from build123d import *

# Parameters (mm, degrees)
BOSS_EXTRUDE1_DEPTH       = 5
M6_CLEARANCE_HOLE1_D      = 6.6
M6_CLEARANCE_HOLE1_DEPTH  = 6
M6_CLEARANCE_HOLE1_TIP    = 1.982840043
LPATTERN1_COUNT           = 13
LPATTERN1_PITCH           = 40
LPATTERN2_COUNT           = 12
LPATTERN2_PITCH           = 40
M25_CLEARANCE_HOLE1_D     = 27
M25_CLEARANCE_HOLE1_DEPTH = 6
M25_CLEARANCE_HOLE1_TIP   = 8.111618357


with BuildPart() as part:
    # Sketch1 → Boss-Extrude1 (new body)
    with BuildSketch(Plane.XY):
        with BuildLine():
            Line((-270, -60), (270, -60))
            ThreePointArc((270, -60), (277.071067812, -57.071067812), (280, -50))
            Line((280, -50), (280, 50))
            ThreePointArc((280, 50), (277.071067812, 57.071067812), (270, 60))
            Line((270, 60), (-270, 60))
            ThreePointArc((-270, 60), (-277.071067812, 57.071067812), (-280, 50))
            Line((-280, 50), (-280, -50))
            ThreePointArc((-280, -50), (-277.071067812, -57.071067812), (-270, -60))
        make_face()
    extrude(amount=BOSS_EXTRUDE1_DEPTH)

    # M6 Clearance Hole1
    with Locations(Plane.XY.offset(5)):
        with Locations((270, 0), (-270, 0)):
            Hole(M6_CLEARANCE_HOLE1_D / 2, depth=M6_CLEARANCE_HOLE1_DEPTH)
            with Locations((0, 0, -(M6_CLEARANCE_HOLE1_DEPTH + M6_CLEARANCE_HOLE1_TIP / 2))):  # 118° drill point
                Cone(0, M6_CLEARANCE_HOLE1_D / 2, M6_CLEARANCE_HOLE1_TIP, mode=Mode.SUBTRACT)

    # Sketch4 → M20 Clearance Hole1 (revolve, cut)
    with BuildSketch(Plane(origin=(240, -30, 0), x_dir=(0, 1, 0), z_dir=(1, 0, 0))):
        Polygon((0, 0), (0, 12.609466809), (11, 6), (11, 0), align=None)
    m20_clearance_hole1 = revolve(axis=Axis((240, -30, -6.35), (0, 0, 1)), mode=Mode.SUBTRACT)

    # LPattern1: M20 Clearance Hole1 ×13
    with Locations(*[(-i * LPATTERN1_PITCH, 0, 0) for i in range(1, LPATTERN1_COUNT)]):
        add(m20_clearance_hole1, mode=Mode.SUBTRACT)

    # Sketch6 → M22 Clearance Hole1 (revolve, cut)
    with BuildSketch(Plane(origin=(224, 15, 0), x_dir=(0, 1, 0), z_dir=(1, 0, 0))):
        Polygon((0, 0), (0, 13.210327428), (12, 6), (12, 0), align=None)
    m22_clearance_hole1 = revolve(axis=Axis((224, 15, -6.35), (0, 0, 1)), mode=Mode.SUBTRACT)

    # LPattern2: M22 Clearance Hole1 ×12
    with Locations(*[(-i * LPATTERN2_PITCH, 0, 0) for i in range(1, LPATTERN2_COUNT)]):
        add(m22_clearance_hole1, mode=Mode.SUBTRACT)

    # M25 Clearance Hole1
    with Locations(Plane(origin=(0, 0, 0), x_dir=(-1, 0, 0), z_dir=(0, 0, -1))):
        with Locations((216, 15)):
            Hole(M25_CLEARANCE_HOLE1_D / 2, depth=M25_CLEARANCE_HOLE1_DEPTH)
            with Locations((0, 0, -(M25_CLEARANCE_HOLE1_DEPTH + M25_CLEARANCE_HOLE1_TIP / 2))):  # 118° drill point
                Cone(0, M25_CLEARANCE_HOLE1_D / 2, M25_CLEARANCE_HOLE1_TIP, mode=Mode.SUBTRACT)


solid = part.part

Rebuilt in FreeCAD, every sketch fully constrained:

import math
import FreeCAD as App
import Part
import Sketcher

V = App.Vector
Q = App.Units.Quantity


def add_polygon(sketch, points):
    """Adds a closed chain of lines whose ends are joined by coincident constraints."""
    first, n = sketch.GeometryCount, len(points)
    for a, b in zip(points, points[1:] + points[:1]):
        sketch.addGeometry(Part.LineSegment(App.Vector(*a, 0), App.Vector(*b, 0)), False)
    for i in range(n):
        sketch.addConstraint(Sketcher.Constraint("Coincident", first + i, 2, first + (i + 1) % n, 1))

doc = App.newDocument("Part")
body = doc.addObject("PartDesign::Body", "Body")

sketch1 = doc.addObject("Sketcher::SketchObject", "Sketch")
body.addObject(sketch1)
sketch1.AttachmentSupport = (doc.XY_Plane, [""])
sketch1.MapMode = "FlatFace"
sketch1.addGeometry(Part.LineSegment(V(-270, -60, 0), V(270, -60, 0)), False)
sketch1.addGeometry(Part.ArcOfCircle(Part.Circle(V(270, -50, 0), V(0, 0, 1), 10), math.radians(-90), math.radians(0)), False)
sketch1.addGeometry(Part.LineSegment(V(280, -50, 0), V(280, 50, 0)), False)
sketch1.addGeometry(Part.ArcOfCircle(Part.Circle(V(270, 50, 0), V(0, 0, 1), 10), math.radians(0), math.radians(90)), False)
sketch1.addGeometry(Part.LineSegment(V(270, 60, 0), V(-270, 60, 0)), False)
sketch1.addGeometry(Part.ArcOfCircle(Part.Circle(V(-270, 50, 0), V(0, 0, 1), 10), math.radians(90), math.radians(180)), False)
sketch1.addGeometry(Part.LineSegment(V(-280, 50, 0), V(-280, -50, 0)), False)
sketch1.addGeometry(Part.ArcOfCircle(Part.Circle(V(-270, -50, 0), V(0, 0, 1), 10), math.radians(180), math.radians(270)), False)
sketch1.addConstraint(Sketcher.Constraint("Tangent", 0, 2, 1, 1))
sketch1.addConstraint(Sketcher.Constraint("Tangent", 1, 2, 2, 1))
sketch1.addConstraint(Sketcher.Constraint("Tangent", 2, 2, 3, 1))
sketch1.addConstraint(Sketcher.Constraint("Tangent", 3, 2, 4, 1))
sketch1.addConstraint(Sketcher.Constraint("Tangent", 4, 2, 5, 1))
sketch1.addConstraint(Sketcher.Constraint("Tangent", 5, 2, 6, 1))
sketch1.addConstraint(Sketcher.Constraint("Tangent", 6, 2, 7, 1))
sketch1.addConstraint(Sketcher.Constraint("Tangent", 7, 2, 0, 1))
sketch1.addConstraint(Sketcher.Constraint("Horizontal", 0))
sketch1.addConstraint(Sketcher.Constraint("Vertical", 2))
sketch1.addConstraint(Sketcher.Constraint("Horizontal", 4))
sketch1.addConstraint(Sketcher.Constraint("Vertical", 6))
sketch1.addConstraint(Sketcher.Constraint("Equal", 1, 3))
sketch1.addConstraint(Sketcher.Constraint("Equal", 3, 5))
sketch1.addConstraint(Sketcher.Constraint("Equal", 5, 7))
sketch1.addConstraint(Sketcher.Constraint("Symmetric", 1, 3, 5, 3, -1, 1))
sketch1.addConstraint(Sketcher.Constraint("Radius", 1, Q("10 mm")))
sketch1.addConstraint(Sketcher.Constraint("DistanceX", 0, 1, 0, 2, Q("540 mm")))
sketch1.addConstraint(Sketcher.Constraint("DistanceY", 2, 1, 2, 2, Q("100 mm")))
pad1 = doc.addObject("PartDesign::Pad", "Pad")
body.addObject(pad1)
pad1.Profile = sketch1
pad1.Length = 5

sketch2 = doc.addObject("Sketcher::SketchObject", "Sketch001")
body.addObject(sketch2)
sketch2.AttachmentSupport = (doc.XY_Plane, [""])
sketch2.MapMode = "FlatFace"
sketch2.AttachmentOffset = App.Placement(V(0, 0, 5), App.Rotation())
sketch2.addGeometry(Part.Circle(V(270, 0, 0), V(0, 0, 1), 3.3), False)
sketch2.addGeometry(Part.Circle(V(-270, 0, 0), V(0, 0, 1), 3.3), False)
sketch2.addConstraint(Sketcher.Constraint("Equal", 0, 1))
sketch2.addConstraint(Sketcher.Constraint("Symmetric", 0, 3, 1, 3, -1, 1))
sketch2.addConstraint(Sketcher.Constraint("PointOnObject", 0, 3, -1))
sketch2.addConstraint(Sketcher.Constraint("Diameter", 0, Q("6.6 mm")))
sketch2.addConstraint(Sketcher.Constraint("DistanceX", -1, 1, 0, 3, Q("270 mm")))
doc.recompute()
hole = doc.addObject("PartDesign::Hole", "Hole")
body.addObject(hole)
hole.Profile = sketch2
hole.ThreadType = "None"
hole.Diameter = 6.6
hole.DepthType = "Dimension"
hole.Depth = 6
hole.DrillPoint = "Angled"
hole.DrillPointAngle = 118

sketch3 = doc.addObject("Sketcher::SketchObject", "Sketch002")
body.addObject(sketch3)
sketch3.AttachmentSupport = (doc.YZ_Plane, [""])
sketch3.MapMode = "FlatFace"
sketch3.AttachmentOffset = App.Placement(V(0, 0, 240), App.Rotation())
add_polygon(sketch3, [(-30, 13), (-30, 0), (-19, 0), (-19, 6)])
sketch3.addGeometry(Part.LineSegment(V(-30, 0, 0), V(-30, 13, 0)), True)
sketch3.addConstraint(Sketcher.Constraint("Vertical", 0))
sketch3.addConstraint(Sketcher.Constraint("Horizontal", 1))
sketch3.addConstraint(Sketcher.Constraint("Vertical", 2))
sketch3.addConstraint(Sketcher.Constraint("Vertical", 4))
sketch3.addConstraint(Sketcher.Constraint("Coincident", 4, 1, 0, 2))
sketch3.addConstraint(Sketcher.Constraint("PointOnObject", 0, 2, -1))
sketch3.addConstraint(Sketcher.Constraint("Equal", 0, 4))
sketch3.addConstraint(Sketcher.Constraint("DistanceX", 1, 1, 1, 2, Q("11 mm")))
sketch3.addConstraint(Sketcher.Constraint("DistanceY", 2, 1, 2, 2, Q("6 mm")))
sketch3.addConstraint(Sketcher.Constraint("Angle", 3, Q("149 deg")))
sketch3.addConstraint(Sketcher.Constraint("DistanceX", 0, 2, -1, 1, Q("30 mm")))
groove = doc.addObject("PartDesign::Groove", "Groove")
body.addObject(groove)
groove.Profile = sketch3
groove.ReferenceAxis = (sketch3, ["Axis0"])
groove.Angle = 360
doc.recompute()

linearpattern = doc.addObject("PartDesign::LinearPattern", "LinearPattern")
body.addObject(linearpattern)
linearpattern.Originals = [groove]
linearpattern.Direction = (doc.X_Axis, [""])
linearpattern.Mode = "offset"
linearpattern.Offset = 40
linearpattern.Occurrences = 13
linearpattern.Reversed = True
body.Tip = linearpattern

sketch4 = doc.addObject("Sketcher::SketchObject", "Sketch003")
body.addObject(sketch4)
sketch4.AttachmentSupport = (doc.YZ_Plane, [""])
sketch4.MapMode = "FlatFace"
sketch4.AttachmentOffset = App.Placement(V(0, 0, 224), App.Rotation())
add_polygon(sketch4, [(15, 13), (15, 0), (27, 0), (27, 6)])
sketch4.addGeometry(Part.LineSegment(V(15, 0, 0), V(15, 13, 0)), True)
sketch4.addConstraint(Sketcher.Constraint("Vertical", 0))
sketch4.addConstraint(Sketcher.Constraint("Horizontal", 1))
sketch4.addConstraint(Sketcher.Constraint("Vertical", 2))
sketch4.addConstraint(Sketcher.Constraint("Vertical", 4))
sketch4.addConstraint(Sketcher.Constraint("Coincident", 4, 1, 0, 2))
sketch4.addConstraint(Sketcher.Constraint("PointOnObject", 0, 2, -1))
sketch4.addConstraint(Sketcher.Constraint("Equal", 0, 4))
sketch4.addConstraint(Sketcher.Constraint("DistanceX", 1, 1, 1, 2, Q("12 mm")))
sketch4.addConstraint(Sketcher.Constraint("DistanceY", 2, 1, 2, 2, Q("6 mm")))
sketch4.addConstraint(Sketcher.Constraint("Angle", 3, Q("149 deg")))
sketch4.addConstraint(Sketcher.Constraint("DistanceX", -1, 1, 0, 2, Q("15 mm")))
groove2 = doc.addObject("PartDesign::Groove", "Groove001")
body.addObject(groove2)
groove2.Profile = sketch4
groove2.ReferenceAxis = (sketch4, ["Axis0"])
groove2.Angle = 360
doc.recompute()

linearpattern2 = doc.addObject("PartDesign::LinearPattern", "LinearPattern001")
body.addObject(linearpattern2)
linearpattern2.Originals = [groove2]
linearpattern2.Direction = (doc.X_Axis, [""])
linearpattern2.Mode = "offset"
linearpattern2.Offset = 40
linearpattern2.Occurrences = 12
linearpattern2.Reversed = True
body.Tip = linearpattern2

sketch5 = doc.addObject("Sketcher::SketchObject", "Sketch004")
body.addObject(sketch5)
sketch5.AttachmentSupport = (doc.XY_Plane, [""])
sketch5.MapMode = "FlatFace"
sketch5.addGeometry(Part.Circle(V(-216, 15, 0), V(0, 0, 1), 14), False)
sketch5.addConstraint(Sketcher.Constraint("Diameter", 0, Q("27 mm")))
sketch5.addConstraint(Sketcher.Constraint("DistanceX", 0, 3, -1, 1, Q("216 mm")))
sketch5.addConstraint(Sketcher.Constraint("DistanceY", -1, 1, 0, 3, Q("15 mm")))
doc.recompute()
hole2 = doc.addObject("PartDesign::Hole", "Hole001")
body.addObject(hole2)
hole2.Profile = sketch5
hole2.ThreadType = "None"
hole2.Diameter = 27
hole2.DepthType = "Dimension"
hole2.Depth = 6
hole2.DrillPoint = "Angled"
hole2.DrillPointAngle = 118
hole2.Reversed = True

doc.recompute()
